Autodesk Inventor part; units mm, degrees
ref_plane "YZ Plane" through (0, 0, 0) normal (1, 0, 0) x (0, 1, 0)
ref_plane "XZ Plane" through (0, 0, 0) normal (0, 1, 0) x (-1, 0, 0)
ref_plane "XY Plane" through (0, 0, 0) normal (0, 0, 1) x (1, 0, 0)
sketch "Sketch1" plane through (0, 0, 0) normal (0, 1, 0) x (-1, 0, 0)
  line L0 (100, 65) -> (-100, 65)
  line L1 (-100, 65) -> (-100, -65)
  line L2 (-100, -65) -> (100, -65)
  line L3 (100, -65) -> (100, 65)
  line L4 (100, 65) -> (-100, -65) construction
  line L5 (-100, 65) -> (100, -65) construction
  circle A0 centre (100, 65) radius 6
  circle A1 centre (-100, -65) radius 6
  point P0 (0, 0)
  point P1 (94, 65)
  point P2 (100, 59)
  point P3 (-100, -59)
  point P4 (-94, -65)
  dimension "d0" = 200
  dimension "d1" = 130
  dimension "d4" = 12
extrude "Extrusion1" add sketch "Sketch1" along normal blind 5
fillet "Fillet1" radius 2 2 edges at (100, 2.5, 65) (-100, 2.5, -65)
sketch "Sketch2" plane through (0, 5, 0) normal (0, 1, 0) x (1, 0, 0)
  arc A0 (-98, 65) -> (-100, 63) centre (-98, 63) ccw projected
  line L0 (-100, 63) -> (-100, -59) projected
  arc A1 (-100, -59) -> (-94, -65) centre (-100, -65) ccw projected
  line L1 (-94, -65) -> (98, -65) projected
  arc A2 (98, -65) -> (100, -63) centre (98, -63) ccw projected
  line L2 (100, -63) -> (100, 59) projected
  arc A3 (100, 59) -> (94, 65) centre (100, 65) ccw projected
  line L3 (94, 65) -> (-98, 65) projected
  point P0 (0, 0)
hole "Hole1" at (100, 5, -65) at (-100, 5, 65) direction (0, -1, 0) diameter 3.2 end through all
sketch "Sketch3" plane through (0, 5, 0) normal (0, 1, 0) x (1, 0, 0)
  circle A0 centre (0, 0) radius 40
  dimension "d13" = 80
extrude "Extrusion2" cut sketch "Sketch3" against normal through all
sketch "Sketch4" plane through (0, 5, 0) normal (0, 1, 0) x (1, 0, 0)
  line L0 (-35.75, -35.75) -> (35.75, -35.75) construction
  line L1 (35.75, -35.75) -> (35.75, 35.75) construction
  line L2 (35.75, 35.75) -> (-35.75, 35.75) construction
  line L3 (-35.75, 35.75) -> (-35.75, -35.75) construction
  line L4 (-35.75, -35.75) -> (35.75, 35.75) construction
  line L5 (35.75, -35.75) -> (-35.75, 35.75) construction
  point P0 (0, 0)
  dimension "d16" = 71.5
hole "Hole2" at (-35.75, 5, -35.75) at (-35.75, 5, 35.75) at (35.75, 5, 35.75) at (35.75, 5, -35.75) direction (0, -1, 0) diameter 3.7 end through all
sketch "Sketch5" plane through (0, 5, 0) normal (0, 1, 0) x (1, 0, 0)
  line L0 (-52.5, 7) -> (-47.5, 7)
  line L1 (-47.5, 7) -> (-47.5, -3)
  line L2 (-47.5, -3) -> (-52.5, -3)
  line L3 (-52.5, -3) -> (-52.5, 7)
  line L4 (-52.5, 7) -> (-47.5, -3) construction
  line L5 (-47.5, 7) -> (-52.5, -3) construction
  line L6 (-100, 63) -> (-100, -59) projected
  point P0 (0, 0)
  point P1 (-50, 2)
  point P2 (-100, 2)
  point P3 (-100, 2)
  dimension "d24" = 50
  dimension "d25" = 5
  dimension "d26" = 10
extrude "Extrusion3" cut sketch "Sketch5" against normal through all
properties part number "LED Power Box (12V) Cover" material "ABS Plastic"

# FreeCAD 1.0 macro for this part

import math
import FreeCAD as App
import Part
import Sketcher
Q = App.Units.Quantity


def edges_at(feature, points):
    """Names of the edges that pass closest to the given points."""
    edges = feature.Shape.Edges
    near = lambda p: min(range(len(edges)), key=lambda i: edges[i].distToShape(Part.Vertex(*p))[0])
    return sorted({f"Edge{near(p) + 1}" for p in points})


def add_polygon(sketch, points):
    """Adds a closed chain of lines whose ends are joined by coincident constraints."""
    first, n = sketch.GeometryCount, len(points)
    for a, b in zip(points, points[1:] + points[:1]):
        sketch.addGeometry(Part.LineSegment(App.Vector(*a, 0), App.Vector(*b, 0)), False)
    for i in range(n):
        sketch.addConstraint(Sketcher.Constraint("Coincident", first + i, 2, first + (i + 1) % n, 1))

doc = App.newDocument("Part")
body = doc.addObject("PartDesign::Body", "Body")

# Sketch on XZ plane
sketch1 = body.newObject("Sketcher::SketchObject", "Sketch")
sketch1.AttachmentSupport = (doc.getObject("XZ_Plane"), [""])
sketch1.MapMode = "FlatFace"
sketch1.addGeometry([
    Part.ArcOfCircle(Part.Circle(App.Vector(-100, 65, 0), App.Vector(0, 0, 1), 6), math.radians(0), math.radians(270)),  # 0
    Part.LineSegment(App.Vector(-94, 65, 0), App.Vector(100, 65, 0)),  # 1
    Part.LineSegment(App.Vector(100, 65, 0), App.Vector(100, -59, 0)),  # 2
    Part.ArcOfCircle(Part.Circle(App.Vector(100, -65, 0), App.Vector(0, 0, 1), 6), math.radians(180), math.radians(450)),  # 3
    Part.LineSegment(App.Vector(94, -65, 0), App.Vector(-100, -65, 0)),  # 4
    Part.LineSegment(App.Vector(-100, -65, 0), App.Vector(-100, 59, 0)),  # 5
], False)
sketch1.addConstraint([
    Sketcher.Constraint("Coincident", 0, 1, 1, 1),
    Sketcher.Constraint("Coincident", 1, 2, 2, 1),
    Sketcher.Constraint("Coincident", 2, 2, 3, 2),
    Sketcher.Constraint("Coincident", 3, 1, 4, 1),
    Sketcher.Constraint("Coincident", 4, 2, 5, 1),
    Sketcher.Constraint("Coincident", 5, 2, 0, 2),
    Sketcher.Constraint("Horizontal", 1),
    Sketcher.Constraint("Vertical", 2),
    Sketcher.Constraint("Horizontal", 4),
    Sketcher.Constraint("Vertical", 5),
    Sketcher.Constraint("Equal", 0, 3),
    Sketcher.Constraint("Symmetric", 0, 3, 3, 3, -1, 1),
    Sketcher.Constraint("Symmetric", 1, 2, 4, 2, -1, 1),
    Sketcher.Constraint("Vertical", 3, 3, 1, 2),
    Sketcher.Constraint("Radius", 0, Q("6 mm")),
    Sketcher.Constraint("DistanceX", 0, 3, 3, 3, Q("200 mm")),
    Sketcher.Constraint("DistanceY", 3, 3, 0, 3, Q("130 mm")),
    Sketcher.Constraint("DistanceY", 3, 3, 0, 1, Q("130 mm")),
])
pad1 = body.newObject("PartDesign::Pad", "Pad")
pad1.Profile = sketch1
pad1.Length = 5
pad1.Reversed = True
doc.recompute()

fillet = body.newObject("PartDesign::Fillet", "Fillet")
fillet.Base = (pad1, edges_at(pad1, [(100, 2.5, 65), (-100, 2.5, -65)]))
fillet.Radius = 2

# Sketch on XZ plane
sketch2 = body.newObject("Sketcher::SketchObject", "Sketch001")
sketch2.AttachmentSupport = (doc.getObject("XZ_Plane"), [""])
sketch2.MapMode = "FlatFace"
sketch2.AttachmentOffset = App.Placement(App.Vector(0, 0, -5), App.Rotation())
sketch2.addGeometry([
    Part.Circle(App.Vector(100, -65, 0), App.Vector(0, 0, 1), 1.6),
    Part.Circle(App.Vector(-100, 65, 0), App.Vector(0, 0, 1), 1.6),
], False)
sketch2.addConstraint([
    Sketcher.Constraint("Equal", 0, 1),
    Sketcher.Constraint("Symmetric", 0, 3, 1, 3, -1, 1),
    Sketcher.Constraint("Diameter", 0, Q("3.2 mm")),
    Sketcher.Constraint("DistanceX", -1, 1, 0, 3, Q("100 mm")),
    Sketcher.Constraint("DistanceY", 0, 3, -1, 1, Q("65 mm")),
])
doc.recompute()
hole = body.newObject("PartDesign::Hole", "Hole")
hole.Profile = sketch2
hole.ThreadType = "None"
hole.Diameter = 3.2
hole.DepthType = "ThroughAll"
hole.Reversed = True

# Sketch on XZ plane
sketch3 = body.newObject("Sketcher::SketchObject", "Sketch002")
sketch3.AttachmentSupport = (doc.getObject("XZ_Plane"), [""])
sketch3.MapMode = "FlatFace"
sketch3.AttachmentOffset = App.Placement(App.Vector(0, 0, -5), App.Rotation())
sketch3.addGeometry(Part.Circle(App.Vector(0, 0, 0), App.Vector(0, 0, 1), 40), False)
sketch3.addConstraint([
    Sketcher.Constraint("Coincident", 0, 3, -1, 1),
    Sketcher.Constraint("Diameter", 0, Q("80 mm")),
])
pocket1 = body.newObject("PartDesign::Pocket", "Pocket")
pocket1.Profile = sketch3
pocket1.Type = "ThroughAll"
pocket1.Reversed = True

# Sketch on XZ plane
sketch4 = body.newObject("Sketcher::SketchObject", "Sketch003")
sketch4.AttachmentSupport = (doc.getObject("XZ_Plane"), [""])
sketch4.MapMode = "FlatFace"
sketch4.AttachmentOffset = App.Placement(App.Vector(0, 0, -5), App.Rotation())
sketch4.addGeometry([
    Part.Circle(App.Vector(-35.75, -35.75, 0), App.Vector(0, 0, 1), 1.85),
    Part.Circle(App.Vector(-35.75, 35.75, 0), App.Vector(0, 0, 1), 1.85),
    Part.Circle(App.Vector(35.75, 35.75, 0), App.Vector(0, 0, 1), 1.85),
    Part.Circle(App.Vector(35.75, -35.75, 0), App.Vector(0, 0, 1), 1.85),
], False)
sketch4.addConstraint([
    Sketcher.Constraint("Equal", 0, 1),
    Sketcher.Constraint("Equal", 1, 2),
    Sketcher.Constraint("Equal", 2, 3),
    Sketcher.Constraint("Symmetric", 0, 3, 2, 3, -1, 1),
    Sketcher.Constraint("Symmetric", 1, 3, 3, 3, -1, 1),
    Sketcher.Constraint("Symmetric", 1, 3, 2, 3, -2),
    Sketcher.Constraint("Diameter", 0, Q("3.7 mm")),
    Sketcher.Constraint("DistanceY", 0, 3, 1, 3, Q("71.5 mm")),
    Sketcher.Constraint("DistanceX", 1, 3, 2, 3, Q("71.5 mm")),
])
doc.recompute()
hole2 = body.newObject("PartDesign::Hole", "Hole001")
hole2.Profile = sketch4
hole2.ThreadType = "None"
hole2.Diameter = 3.7
hole2.DepthType = "ThroughAll"
hole2.Reversed = True

# Sketch on XZ plane
sketch5 = body.newObject("Sketcher::SketchObject", "Sketch004")
sketch5.AttachmentSupport = (doc.getObject("XZ_Plane"), [""])
sketch5.MapMode = "FlatFace"
sketch5.AttachmentOffset = App.Placement(App.Vector(0, 0, -5), App.Rotation())
add_polygon(sketch5, [(-47.5, -7), (-52.5, -7), (-52.5, 3), (-47.5, 3)])  # lines 0-3
sketch5.addConstraint([
    Sketcher.Constraint("Horizontal", 0),
    Sketcher.Constraint("Vertical", 1),
    Sketcher.Constraint("Horizontal", 2),
    Sketcher.Constraint("Vertical", 3),
    Sketcher.Constraint("DistanceX", 0, 2, 0, 1, Q("5 mm")),
    Sketcher.Constraint("DistanceY", 1, 1, 1, 2, Q("10 mm")),
    Sketcher.Constraint("DistanceY", 0, 2, -1, 1, Q("7 mm")),
    Sketcher.Constraint("DistanceX", 0, 2, -1, 1, Q("52.5 mm")),
])
pocket2 = body.newObject("PartDesign::Pocket", "Pocket001")
pocket2.Profile = sketch5
pocket2.Type = "ThroughAll"
pocket2.Reversed = True

doc.recompute()
